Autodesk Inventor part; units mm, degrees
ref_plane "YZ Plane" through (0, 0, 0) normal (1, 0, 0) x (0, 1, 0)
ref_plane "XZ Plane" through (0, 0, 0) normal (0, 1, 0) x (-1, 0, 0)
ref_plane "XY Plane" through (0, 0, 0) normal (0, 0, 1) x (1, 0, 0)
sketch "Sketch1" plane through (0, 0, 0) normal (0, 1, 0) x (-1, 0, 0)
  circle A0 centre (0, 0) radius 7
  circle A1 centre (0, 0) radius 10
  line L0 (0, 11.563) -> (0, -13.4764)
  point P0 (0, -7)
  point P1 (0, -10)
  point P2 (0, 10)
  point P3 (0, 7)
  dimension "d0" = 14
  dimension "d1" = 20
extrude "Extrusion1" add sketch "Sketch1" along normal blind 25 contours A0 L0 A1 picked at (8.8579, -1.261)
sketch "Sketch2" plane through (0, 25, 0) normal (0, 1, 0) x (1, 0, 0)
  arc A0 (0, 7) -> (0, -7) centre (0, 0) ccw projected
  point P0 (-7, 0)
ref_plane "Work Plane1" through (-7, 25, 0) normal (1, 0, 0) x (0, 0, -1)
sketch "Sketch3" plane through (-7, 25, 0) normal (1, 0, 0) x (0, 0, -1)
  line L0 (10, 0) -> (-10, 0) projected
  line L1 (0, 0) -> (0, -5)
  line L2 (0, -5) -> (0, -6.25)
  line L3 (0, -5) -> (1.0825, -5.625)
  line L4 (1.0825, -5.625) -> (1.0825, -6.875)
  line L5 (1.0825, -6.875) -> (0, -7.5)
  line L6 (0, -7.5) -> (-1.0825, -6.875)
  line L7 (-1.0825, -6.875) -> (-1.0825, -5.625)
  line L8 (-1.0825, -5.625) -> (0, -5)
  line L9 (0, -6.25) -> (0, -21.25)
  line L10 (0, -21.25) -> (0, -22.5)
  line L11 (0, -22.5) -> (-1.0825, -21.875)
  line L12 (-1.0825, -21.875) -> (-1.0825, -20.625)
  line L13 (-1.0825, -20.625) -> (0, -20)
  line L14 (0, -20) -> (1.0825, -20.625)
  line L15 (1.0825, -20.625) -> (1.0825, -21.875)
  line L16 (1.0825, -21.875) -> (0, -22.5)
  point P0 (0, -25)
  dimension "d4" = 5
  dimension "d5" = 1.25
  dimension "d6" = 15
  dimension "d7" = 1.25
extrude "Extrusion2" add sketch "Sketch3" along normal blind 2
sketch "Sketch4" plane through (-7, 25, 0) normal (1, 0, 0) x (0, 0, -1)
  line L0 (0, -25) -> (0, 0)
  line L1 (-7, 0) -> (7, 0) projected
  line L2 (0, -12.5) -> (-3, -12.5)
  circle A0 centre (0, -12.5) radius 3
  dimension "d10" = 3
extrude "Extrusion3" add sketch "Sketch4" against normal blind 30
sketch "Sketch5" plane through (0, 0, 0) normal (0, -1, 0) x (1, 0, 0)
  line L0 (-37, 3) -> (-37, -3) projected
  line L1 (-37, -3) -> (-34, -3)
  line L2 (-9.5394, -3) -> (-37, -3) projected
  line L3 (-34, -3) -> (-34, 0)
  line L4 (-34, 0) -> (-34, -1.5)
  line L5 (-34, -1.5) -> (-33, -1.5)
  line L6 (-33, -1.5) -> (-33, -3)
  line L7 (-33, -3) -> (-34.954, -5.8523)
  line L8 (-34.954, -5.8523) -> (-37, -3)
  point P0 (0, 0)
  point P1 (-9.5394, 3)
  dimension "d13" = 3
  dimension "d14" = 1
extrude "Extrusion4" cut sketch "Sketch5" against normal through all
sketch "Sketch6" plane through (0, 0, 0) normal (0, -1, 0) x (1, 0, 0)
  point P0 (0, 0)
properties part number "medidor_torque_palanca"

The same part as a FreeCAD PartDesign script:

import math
import FreeCAD as App
import Part
import Sketcher
from FreeCAD import Vector
Q = App.Units.Quantity


def add_polygon(sketch, points):
    """Adds a closed chain of lines whose ends are joined by coincident constraints."""
    first, n = sketch.GeometryCount, len(points)
    for a, b in zip(points, points[1:] + points[:1]):
        sketch.addGeometry(Part.LineSegment(App.Vector(*a, 0), App.Vector(*b, 0)), False)
    for i in range(n):
        sketch.addConstraint(Sketcher.Constraint("Coincident", first + i, 2, first + (i + 1) % n, 1))

doc = App.newDocument("Part")
body = doc.addObject("PartDesign::Body", "Body")

# Sketch on XZ plane
sketch1 = body.newObject("Sketcher::SketchObject", "Sketch")
sketch1.AttachmentSupport = (doc.getObject("XZ_Plane"), [""])
sketch1.MapMode = "FlatFace"
sketch1.addGeometry([
    Part.ArcOfCircle(Part.Circle(Vector(0, 0, 0), Vector(0, 0, 1), 7), math.radians(90), math.radians(270)),
    Part.LineSegment(Vector(0, -7, 0), Vector(0, -10, 0)),
    Part.ArcOfCircle(Part.Circle(Vector(0, 0, 0), Vector(0, 0, 1), 10), math.radians(90), math.radians(270)),
    Part.LineSegment(Vector(0, 10, 0), Vector(0, 7, 0)),
], False)
sketch1.addConstraint([
    Sketcher.Constraint("Coincident", 0, 2, 1, 1),
    Sketcher.Constraint("Coincident", 1, 2, 2, 2),
    Sketcher.Constraint("Coincident", 2, 1, 3, 1),
    Sketcher.Constraint("Coincident", 3, 2, 0, 1),
    Sketcher.Constraint("Vertical", 1),
    Sketcher.Constraint("Vertical", 3),
    Sketcher.Constraint("Coincident", 0, 3, -1, 1),
    Sketcher.Constraint("Coincident", 2, 3, -1, 1),
    Sketcher.Constraint("PointOnObject", 0, 2, -2),
    Sketcher.Constraint("PointOnObject", 2, 1, -2),
    Sketcher.Constraint("Radius", 0, Q("7 mm")),
    Sketcher.Constraint("Radius", 2, Q("10 mm")),
])
pad1 = body.newObject("PartDesign::Pad", "Pad")
pad1.Profile = sketch1
pad1.Length = 25
pad1.Reversed = True

# Sketch on YZ plane
sketch2 = body.newObject("Sketcher::SketchObject", "Sketch001")
sketch2.AttachmentSupport = (doc.getObject("YZ_Plane"), [""])
sketch2.MapMode = "FlatFace"
sketch2.AttachmentOffset = App.Placement(Vector(0, 0, -7), App.Rotation())
add_polygon(sketch2, [(19.4, -1.1), (20, 0), (19.4, 1.1), (18.1, 1.1), (17.5, 0), (18.1, -1.1)])  # lines 0-5
add_polygon(sketch2, [(4.4, -1.1), (5, 0), (4.4, 1.1), (3.1, 1.1), (2.5, 0), (3.1, -1.1)])  # lines 6-11
sketch2.addConstraint([
    Sketcher.Constraint("Horizontal", 2),
    Sketcher.Constraint("Horizontal", 5),
    Sketcher.Constraint("Horizontal", 8),
    Sketcher.Constraint("Horizontal", 11),
    Sketcher.Constraint("Symmetric", 2, 2, 4, 2, -1),
    Sketcher.Constraint("Symmetric", 8, 2, 10, 2, -1),
    Sketcher.Constraint("PointOnObject", 0, 2, -1),
    Sketcher.Constraint("PointOnObject", 3, 2, -1),
    Sketcher.Constraint("PointOnObject", 6, 2, -1),
    Sketcher.Constraint("PointOnObject", 9, 2, -1),
    Sketcher.Constraint("Parallel", 0, 3),
    Sketcher.Constraint("Parallel", 1, 4),
    Sketcher.Constraint("Parallel", 3, 6),
    Sketcher.Constraint("Parallel", 4, 7),
    Sketcher.Constraint("Parallel", 6, 9),
    Sketcher.Constraint("Horizontal", 2, 2, 7, 2),
    Sketcher.Constraint("Equal", 5, 8),
    Sketcher.Constraint("DistanceX", -1, 1, 6, 2, Q("5 mm")),
    Sketcher.Constraint("DistanceX", 7, 2, 1, 2, Q("15 mm")),
    Sketcher.Constraint("DistanceX", 2, 2, 2, 1, Q("1.25 mm")),
    Sketcher.Constraint("Distance", 0, Q("1.25 mm")),
    Sketcher.Constraint("Angle", 0, Q("59.9993 deg")),
])
pad2 = body.newObject("PartDesign::Pad", "Pad001")
pad2.Profile = sketch2
pad2.Length = 2

# Sketch on YZ plane
sketch3 = body.newObject("Sketcher::SketchObject", "Sketch002")
sketch3.AttachmentSupport = (doc.getObject("YZ_Plane"), [""])
sketch3.MapMode = "FlatFace"
sketch3.AttachmentOffset = App.Placement(Vector(0, 0, -7), App.Rotation())
sketch3.addGeometry(Part.Circle(Vector(12.5, 0, 0), Vector(0, 0, 1), 3), False)
sketch3.addConstraint([
    Sketcher.Constraint("PointOnObject", 0, 3, -1),
    Sketcher.Constraint("Diameter", 0, Q("6 mm")),
    Sketcher.Constraint("DistanceX", -1, 1, 0, 3, Q("12.5 mm")),
])
pad3 = body.newObject("PartDesign::Pad", "Pad002")
pad3.Profile = sketch3
pad3.Length = 30
pad3.Reversed = True

# Sketch on XZ plane
sketch4 = body.newObject("Sketcher::SketchObject", "Sketch003")
sketch4.AttachmentSupport = (doc.getObject("XZ_Plane"), [""])
sketch4.MapMode = "FlatFace"
add_polygon(sketch4, [(-34, -3), (-37, -3), (-35, -5.9), (-33, -3), (-33, -1.5), (-34, -1.5)])  # lines 0-5
sketch4.addConstraint([
    Sketcher.Constraint("Horizontal", 0),
    Sketcher.Constraint("Vertical", 3),
    Sketcher.Constraint("Horizontal", 4),
    Sketcher.Constraint("Vertical", 5),
    Sketcher.Constraint("Horizontal", 0, 2, 2, 2),
    Sketcher.Constraint("DistanceX", 0, 2, 0, 1, Q("3 mm")),
    Sketcher.Constraint("DistanceX", 4, 2, 4, 1, Q("1 mm")),
    Sketcher.Constraint("DistanceY", 0, 2, -1, 1, Q("3 mm")),
    Sketcher.Constraint("DistanceY", 3, 1, 3, 2, Q("1.5 mm")),
    Sketcher.Constraint("DistanceX", 0, 2, -1, 1, Q("37 mm")),
    Sketcher.Constraint("DistanceX", 1, 2, -1, 1, Q("34.954 mm")),
    Sketcher.Constraint("Distance", 1, Q("3.5102 mm")),
])
pocket1 = body.newObject("PartDesign::Pocket", "Pocket")
pocket1.Profile = sketch4
pocket1.Type = "ThroughAll"

doc.recompute()
